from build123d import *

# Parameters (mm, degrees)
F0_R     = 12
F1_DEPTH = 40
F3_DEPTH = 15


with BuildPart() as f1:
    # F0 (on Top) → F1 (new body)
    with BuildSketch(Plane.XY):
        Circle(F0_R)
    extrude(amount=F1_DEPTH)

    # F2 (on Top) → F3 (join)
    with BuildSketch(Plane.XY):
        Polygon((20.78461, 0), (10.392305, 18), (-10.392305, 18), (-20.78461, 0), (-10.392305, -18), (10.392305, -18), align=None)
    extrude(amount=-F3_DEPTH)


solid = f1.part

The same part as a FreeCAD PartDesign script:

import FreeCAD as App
import Part
import Sketcher
Q = App.Units.Quantity


def add_polygon(sketch, points):
    """Adds a closed chain of lines whose ends are joined by coincident constraints."""
    first, n = sketch.GeometryCount, len(points)
    for a, b in zip(points, points[1:] + points[:1]):
        sketch.addGeometry(Part.LineSegment(App.Vector(*a, 0), App.Vector(*b, 0)), False)
    for i in range(n):
        sketch.addConstraint(Sketcher.Constraint("Coincident", first + i, 2, first + (i + 1) % n, 1))

doc = App.newDocument("Part")
params = doc.addObject("Spreadsheet::Sheet", "Params")
for row, (alias, value) in enumerate([
    ("sketch1_diameter", "24 mm"),
    ("pad1_length", "40 mm"),
    ("pad2_length", "15 mm"),
], start=1):
    params.set(f"A{row}", alias)
    params.set(f"B{row}", "=" + value)
    params.setAlias(f"B{row}", alias)

body = doc.addObject("PartDesign::Body", "Body")

# Sketch on XY plane
sketch1 = body.newObject("Sketcher::SketchObject", "Sketch")
sketch1.AttachmentSupport = (doc.getObject("XY_Plane"), [""])
sketch1.MapMode = "FlatFace"
sketch1.addGeometry(Part.Circle(App.Vector(0, 0, 0), App.Vector(0, 0, 1), 12), False)
sketch1.addConstraint(Sketcher.Constraint("Coincident", 0, 3, -1, 1))
sketch1.addConstraint(Sketcher.Constraint("Diameter", 0, Q("24 mm")))
sketch1.setExpression("Constraints[1]", "Params.sketch1_diameter")
pad1 = body.newObject("PartDesign::Pad", "Pad")
pad1.Profile = sketch1
pad1.setExpression("Length", "Params.pad1_length")

# Sketch on XY plane
sketch2 = body.newObject("Sketcher::SketchObject", "Sketch001")
sketch2.AttachmentSupport = (doc.getObject("XY_Plane"), [""])
sketch2.MapMode = "FlatFace"
add_polygon(sketch2, [(21, 0), (10, 18), (-10, 18), (-21, 0), (-10, -18), (10, -18)])  # lines 0-5
sketch2.addConstraint(Sketcher.Constraint("Horizontal", 1))
sketch2.addConstraint(Sketcher.Constraint("Horizontal", 4))
sketch2.addConstraint(Sketcher.Constraint("Symmetric", 0, 2, 3, 2, -1, 1))
sketch2.addConstraint(Sketcher.Constraint("Symmetric", 2, 2, 5, 2, -1, 1))
sketch2.addConstraint(Sketcher.Constraint("PointOnObject", 2, 2, -1))
sketch2.addConstraint(Sketcher.Constraint("Parallel", 2, 5))
sketch2.addConstraint(Sketcher.Constraint("Vertical", 1, 2, 3, 2))
sketch2.addConstraint(Sketcher.Constraint("Angle", 0, Q("120 deg")))
sketch2.addConstraint(Sketcher.Constraint("DistanceY", -1, 1, 0, 2, Q("18 mm")))
sketch2.addConstraint(Sketcher.Constraint("DistanceX", 1, 2, 1, 1, Q("20.78461 mm")))
pad2 = body.newObject("PartDesign::Pad", "Pad001")
pad2.Profile = sketch2
pad2.setExpression("Length", "Params.pad2_length")
pad2.Reversed = True

doc.recompute()
